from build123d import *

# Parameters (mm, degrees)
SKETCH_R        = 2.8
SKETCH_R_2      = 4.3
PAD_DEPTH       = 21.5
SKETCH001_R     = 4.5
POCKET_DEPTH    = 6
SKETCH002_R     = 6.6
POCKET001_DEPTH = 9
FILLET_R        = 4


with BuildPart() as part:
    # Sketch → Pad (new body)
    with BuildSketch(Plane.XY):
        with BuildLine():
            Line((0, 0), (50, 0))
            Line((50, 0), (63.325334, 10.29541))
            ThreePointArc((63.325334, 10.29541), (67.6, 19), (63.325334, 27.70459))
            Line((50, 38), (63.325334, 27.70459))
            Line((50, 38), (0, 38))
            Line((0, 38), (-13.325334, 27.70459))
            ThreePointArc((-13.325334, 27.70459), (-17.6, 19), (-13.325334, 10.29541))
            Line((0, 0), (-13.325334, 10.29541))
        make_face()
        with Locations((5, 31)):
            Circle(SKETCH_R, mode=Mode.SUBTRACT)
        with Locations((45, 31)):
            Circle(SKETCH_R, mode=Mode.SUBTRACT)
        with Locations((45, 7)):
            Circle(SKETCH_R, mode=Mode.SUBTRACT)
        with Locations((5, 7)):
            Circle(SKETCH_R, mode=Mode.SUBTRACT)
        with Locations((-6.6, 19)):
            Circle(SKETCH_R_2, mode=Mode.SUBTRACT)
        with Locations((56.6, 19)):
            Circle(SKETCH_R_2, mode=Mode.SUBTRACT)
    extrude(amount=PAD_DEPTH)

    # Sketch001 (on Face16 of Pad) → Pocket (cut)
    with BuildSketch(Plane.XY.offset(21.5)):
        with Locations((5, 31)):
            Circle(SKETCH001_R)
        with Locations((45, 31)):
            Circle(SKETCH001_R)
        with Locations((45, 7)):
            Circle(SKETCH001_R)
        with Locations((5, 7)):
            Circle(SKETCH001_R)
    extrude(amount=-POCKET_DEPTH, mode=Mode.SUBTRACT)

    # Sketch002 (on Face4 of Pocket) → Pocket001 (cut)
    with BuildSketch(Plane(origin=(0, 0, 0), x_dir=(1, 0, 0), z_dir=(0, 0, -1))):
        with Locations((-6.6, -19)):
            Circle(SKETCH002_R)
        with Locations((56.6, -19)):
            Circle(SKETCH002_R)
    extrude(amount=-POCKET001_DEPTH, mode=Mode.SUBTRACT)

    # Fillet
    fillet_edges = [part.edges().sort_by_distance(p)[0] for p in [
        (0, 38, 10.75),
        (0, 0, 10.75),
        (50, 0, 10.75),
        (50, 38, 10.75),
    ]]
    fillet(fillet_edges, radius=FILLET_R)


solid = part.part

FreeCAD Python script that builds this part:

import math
import FreeCAD as App
import Part
import Sketcher


def edges_at(feature, points):
    """Names of the edges that pass closest to the given points."""
    edges = feature.Shape.Edges
    near = lambda p: min(range(len(edges)), key=lambda i: edges[i].distToShape(Part.Vertex(*p))[0])
    return sorted({f"Edge{near(p) + 1}" for p in points})

doc = App.newDocument("Part")
body = doc.addObject("PartDesign::Body", "Body")

sketch1 = body.newObject("Sketcher::SketchObject", "Sketch")
sketch1.AttachmentSupport = (doc.getObject("XY_Plane"), [""])
sketch1.MapMode = "FlatFace"
sketch1.addGeometry([
    Part.LineSegment(App.Vector(0, 0, 0), App.Vector(50, 0, 0)),
    Part.LineSegment(App.Vector(50, 0, 0), App.Vector(63.325334, 10.29541, 0)),
    Part.ArcOfCircle(Part.Circle(App.Vector(56.599999, 19, 0), App.Vector(0, 0, 1), 11.000001), math.radians(-52.309632), math.radians(52.309632)),
    Part.LineSegment(App.Vector(63.325334, 27.70459, 0), App.Vector(50, 38, 0)),
    Part.LineSegment(App.Vector(50, 38, 0), App.Vector(0, 38, 0)),
    Part.LineSegment(App.Vector(0, 38, 0), App.Vector(-13.325334, 27.70459, 0)),
    Part.ArcOfCircle(Part.Circle(App.Vector(-6.599999, 19, 0), App.Vector(0, 0, 1), 11.000001), math.radians(127.690368), math.radians(232.309632)),
    Part.LineSegment(App.Vector(-13.325334, 10.29541, 0), App.Vector(0, 0, 0)),
    Part.Circle(App.Vector(5, 7, 0), App.Vector(0, 0, 1), 2.8),
    Part.Circle(App.Vector(-6.6, 19, 0), App.Vector(0, 0, 1), 4.3),
    Part.Circle(App.Vector(45, 7, 0), App.Vector(0, 0, 1), 2.8),
    Part.Circle(App.Vector(56.6, 19, 0), App.Vector(0, 0, 1), 4.3),
    Part.Circle(App.Vector(5, 31, 0), App.Vector(0, 0, 1), 2.8),
    Part.Circle(App.Vector(45, 31, 0), App.Vector(0, 0, 1), 2.8),
], False)
sketch1.addConstraint([
    Sketcher.Constraint("Coincident", 0, 2, 1, 1),
    Sketcher.Constraint("Tangent", 1, 2, 2, 1),
    Sketcher.Constraint("Tangent", 2, 2, 3, 1),
    Sketcher.Constraint("Coincident", 3, 2, 4, 1),
    Sketcher.Constraint("Coincident", 4, 2, 5, 1),
    Sketcher.Constraint("Tangent", 5, 2, 6, 1),
    Sketcher.Constraint("Tangent", 6, 2, 7, 1),
    Sketcher.Constraint("Coincident", 7, 2, 0, 1),
    Sketcher.Constraint("Horizontal", 0),
    Sketcher.Constraint("Horizontal", 4),
    Sketcher.Constraint("Coincident", 7, 2, -1, 1),
    Sketcher.Constraint("Coincident", 9, 3, 6, 3),
    Sketcher.Constraint("Coincident", 11, 3, 2, 3),
    Sketcher.Constraint("Equal", 2, 6),
    Sketcher.Constraint("Equal", 8, 10),
    Sketcher.Constraint("Equal", 9, 11),
    Sketcher.Constraint("Equal", 10, 12),
    Sketcher.Constraint("Equal", 12, 13),
    Sketcher.Constraint("PointOnObject", 4, 2, -2),
    Sketcher.Constraint("Parallel", 1, 5),
    Sketcher.Constraint("Parallel", 3, 7),
    Sketcher.Constraint("Horizontal", 2, 3, 6, 3),
    Sketcher.Constraint("Horizontal", 8, 3, 10, 3),
    Sketcher.Constraint("Horizontal", 12, 3, 13, 3),
    Sketcher.Constraint("Horizontal", 2, 2, 5, 2),
    Sketcher.Constraint("Vertical", 8, 3, 12, 3),
    Sketcher.Constraint("Vertical", 10, 3, 13, 3),
    Sketcher.Constraint("Radius", 2, 11.000001),
    Sketcher.Constraint("Diameter", 8, 5.6),
    Sketcher.Constraint("Diameter", 9, 8.6),
    Sketcher.Constraint("DistanceX", 0, 1, 0, 2, 50.0),
    Sketcher.Constraint("DistanceY", -1, 1, 2, 3, 19.0),
    Sketcher.Constraint("DistanceX", -1, 1, 8, 3, 5.0),
    Sketcher.Constraint("DistanceY", -1, 1, 8, 3, 7.0),
    Sketcher.Constraint("DistanceX", -1, 1, 10, 3, 45.0),
    Sketcher.Constraint("DistanceY", -1, 1, 12, 3, 31.0),
    Sketcher.Constraint("DistanceX", -1, 1, 2, 3, 56.599999),
])
pad1 = body.newObject("PartDesign::Pad", "Pad")
pad1.Profile = sketch1
pad1.Length = 21.5

sketch2 = body.newObject("Sketcher::SketchObject", "Sketch001")
sketch2.AttachmentSupport = (doc.getObject("XY_Plane"), [""])
sketch2.MapMode = "FlatFace"
sketch2.AttachmentOffset = App.Placement(App.Vector(0, 0, 21.5), App.Rotation())
sketch2.addGeometry([
    Part.Circle(App.Vector(5, 31, 0), App.Vector(0, 0, 1), 4.5),
    Part.Circle(App.Vector(45, 31, 0), App.Vector(0, 0, 1), 4.5),
    Part.Circle(App.Vector(45, 7, 0), App.Vector(0, 0, 1), 4.5),
    Part.Circle(App.Vector(5, 7, 0), App.Vector(0, 0, 1), 4.5),
], False)
sketch2.addConstraint([
    Sketcher.Constraint("Equal", 0, 1),
    Sketcher.Constraint("Equal", 1, 2),
    Sketcher.Constraint("Equal", 2, 3),
    Sketcher.Constraint("Horizontal", 0, 3, 1, 3),
    Sketcher.Constraint("Horizontal", 2, 3, 3, 3),
    Sketcher.Constraint("Vertical", 1, 3, 2, 3),
    Sketcher.Constraint("Vertical", 0, 3, 3, 3),
    Sketcher.Constraint("Diameter", 0, 9.0),
    Sketcher.Constraint("DistanceX", -1, 1, 0, 3, 5.0),
    Sketcher.Constraint("DistanceY", -1, 1, 0, 3, 31.0),
    Sketcher.Constraint("DistanceX", -1, 1, 1, 3, 45.0),
    Sketcher.Constraint("DistanceY", -1, 1, 2, 3, 7.0),
])
pocket1 = body.newObject("PartDesign::Pocket", "Pocket")
pocket1.Profile = sketch2
pocket1.Length = 6

sketch3 = body.newObject("Sketcher::SketchObject", "Sketch002")
sketch3.AttachmentSupport = (doc.getObject("XY_Plane"), [""])
sketch3.MapMode = "FlatFace"
sketch3.addGeometry([
    Part.Circle(App.Vector(-6.6, 19, 0), App.Vector(0, 0, 1), 6.6),
    Part.Circle(App.Vector(56.6, 19, 0), App.Vector(0, 0, 1), 6.6),
], False)
sketch3.addConstraint([
    Sketcher.Constraint("Equal", 0, 1),
    Sketcher.Constraint("Horizontal", 0, 3, 1, 3),
    Sketcher.Constraint("Diameter", 0, 13.2),
    Sketcher.Constraint("DistanceY", -1, 1, 0, 3, 19.0),
    Sketcher.Constraint("DistanceX", 0, 3, -1, 1, 6.6),
    Sketcher.Constraint("DistanceX", -1, 1, 1, 3, 56.6),
])
pocket2 = body.newObject("PartDesign::Pocket", "Pocket001")
pocket2.Profile = sketch3
pocket2.Length = 9
pocket2.Reversed = True
doc.recompute()

fillet = body.newObject("PartDesign::Fillet", "Fillet")
fillet.Base = (pocket2, edges_at(pocket2, [
    (0, 38, 10.75),
    (0, 0, 10.75),
    (50, 0, 10.75),
    (50, 38, 10.75),
]))
fillet.Radius = 4

doc.recompute()
